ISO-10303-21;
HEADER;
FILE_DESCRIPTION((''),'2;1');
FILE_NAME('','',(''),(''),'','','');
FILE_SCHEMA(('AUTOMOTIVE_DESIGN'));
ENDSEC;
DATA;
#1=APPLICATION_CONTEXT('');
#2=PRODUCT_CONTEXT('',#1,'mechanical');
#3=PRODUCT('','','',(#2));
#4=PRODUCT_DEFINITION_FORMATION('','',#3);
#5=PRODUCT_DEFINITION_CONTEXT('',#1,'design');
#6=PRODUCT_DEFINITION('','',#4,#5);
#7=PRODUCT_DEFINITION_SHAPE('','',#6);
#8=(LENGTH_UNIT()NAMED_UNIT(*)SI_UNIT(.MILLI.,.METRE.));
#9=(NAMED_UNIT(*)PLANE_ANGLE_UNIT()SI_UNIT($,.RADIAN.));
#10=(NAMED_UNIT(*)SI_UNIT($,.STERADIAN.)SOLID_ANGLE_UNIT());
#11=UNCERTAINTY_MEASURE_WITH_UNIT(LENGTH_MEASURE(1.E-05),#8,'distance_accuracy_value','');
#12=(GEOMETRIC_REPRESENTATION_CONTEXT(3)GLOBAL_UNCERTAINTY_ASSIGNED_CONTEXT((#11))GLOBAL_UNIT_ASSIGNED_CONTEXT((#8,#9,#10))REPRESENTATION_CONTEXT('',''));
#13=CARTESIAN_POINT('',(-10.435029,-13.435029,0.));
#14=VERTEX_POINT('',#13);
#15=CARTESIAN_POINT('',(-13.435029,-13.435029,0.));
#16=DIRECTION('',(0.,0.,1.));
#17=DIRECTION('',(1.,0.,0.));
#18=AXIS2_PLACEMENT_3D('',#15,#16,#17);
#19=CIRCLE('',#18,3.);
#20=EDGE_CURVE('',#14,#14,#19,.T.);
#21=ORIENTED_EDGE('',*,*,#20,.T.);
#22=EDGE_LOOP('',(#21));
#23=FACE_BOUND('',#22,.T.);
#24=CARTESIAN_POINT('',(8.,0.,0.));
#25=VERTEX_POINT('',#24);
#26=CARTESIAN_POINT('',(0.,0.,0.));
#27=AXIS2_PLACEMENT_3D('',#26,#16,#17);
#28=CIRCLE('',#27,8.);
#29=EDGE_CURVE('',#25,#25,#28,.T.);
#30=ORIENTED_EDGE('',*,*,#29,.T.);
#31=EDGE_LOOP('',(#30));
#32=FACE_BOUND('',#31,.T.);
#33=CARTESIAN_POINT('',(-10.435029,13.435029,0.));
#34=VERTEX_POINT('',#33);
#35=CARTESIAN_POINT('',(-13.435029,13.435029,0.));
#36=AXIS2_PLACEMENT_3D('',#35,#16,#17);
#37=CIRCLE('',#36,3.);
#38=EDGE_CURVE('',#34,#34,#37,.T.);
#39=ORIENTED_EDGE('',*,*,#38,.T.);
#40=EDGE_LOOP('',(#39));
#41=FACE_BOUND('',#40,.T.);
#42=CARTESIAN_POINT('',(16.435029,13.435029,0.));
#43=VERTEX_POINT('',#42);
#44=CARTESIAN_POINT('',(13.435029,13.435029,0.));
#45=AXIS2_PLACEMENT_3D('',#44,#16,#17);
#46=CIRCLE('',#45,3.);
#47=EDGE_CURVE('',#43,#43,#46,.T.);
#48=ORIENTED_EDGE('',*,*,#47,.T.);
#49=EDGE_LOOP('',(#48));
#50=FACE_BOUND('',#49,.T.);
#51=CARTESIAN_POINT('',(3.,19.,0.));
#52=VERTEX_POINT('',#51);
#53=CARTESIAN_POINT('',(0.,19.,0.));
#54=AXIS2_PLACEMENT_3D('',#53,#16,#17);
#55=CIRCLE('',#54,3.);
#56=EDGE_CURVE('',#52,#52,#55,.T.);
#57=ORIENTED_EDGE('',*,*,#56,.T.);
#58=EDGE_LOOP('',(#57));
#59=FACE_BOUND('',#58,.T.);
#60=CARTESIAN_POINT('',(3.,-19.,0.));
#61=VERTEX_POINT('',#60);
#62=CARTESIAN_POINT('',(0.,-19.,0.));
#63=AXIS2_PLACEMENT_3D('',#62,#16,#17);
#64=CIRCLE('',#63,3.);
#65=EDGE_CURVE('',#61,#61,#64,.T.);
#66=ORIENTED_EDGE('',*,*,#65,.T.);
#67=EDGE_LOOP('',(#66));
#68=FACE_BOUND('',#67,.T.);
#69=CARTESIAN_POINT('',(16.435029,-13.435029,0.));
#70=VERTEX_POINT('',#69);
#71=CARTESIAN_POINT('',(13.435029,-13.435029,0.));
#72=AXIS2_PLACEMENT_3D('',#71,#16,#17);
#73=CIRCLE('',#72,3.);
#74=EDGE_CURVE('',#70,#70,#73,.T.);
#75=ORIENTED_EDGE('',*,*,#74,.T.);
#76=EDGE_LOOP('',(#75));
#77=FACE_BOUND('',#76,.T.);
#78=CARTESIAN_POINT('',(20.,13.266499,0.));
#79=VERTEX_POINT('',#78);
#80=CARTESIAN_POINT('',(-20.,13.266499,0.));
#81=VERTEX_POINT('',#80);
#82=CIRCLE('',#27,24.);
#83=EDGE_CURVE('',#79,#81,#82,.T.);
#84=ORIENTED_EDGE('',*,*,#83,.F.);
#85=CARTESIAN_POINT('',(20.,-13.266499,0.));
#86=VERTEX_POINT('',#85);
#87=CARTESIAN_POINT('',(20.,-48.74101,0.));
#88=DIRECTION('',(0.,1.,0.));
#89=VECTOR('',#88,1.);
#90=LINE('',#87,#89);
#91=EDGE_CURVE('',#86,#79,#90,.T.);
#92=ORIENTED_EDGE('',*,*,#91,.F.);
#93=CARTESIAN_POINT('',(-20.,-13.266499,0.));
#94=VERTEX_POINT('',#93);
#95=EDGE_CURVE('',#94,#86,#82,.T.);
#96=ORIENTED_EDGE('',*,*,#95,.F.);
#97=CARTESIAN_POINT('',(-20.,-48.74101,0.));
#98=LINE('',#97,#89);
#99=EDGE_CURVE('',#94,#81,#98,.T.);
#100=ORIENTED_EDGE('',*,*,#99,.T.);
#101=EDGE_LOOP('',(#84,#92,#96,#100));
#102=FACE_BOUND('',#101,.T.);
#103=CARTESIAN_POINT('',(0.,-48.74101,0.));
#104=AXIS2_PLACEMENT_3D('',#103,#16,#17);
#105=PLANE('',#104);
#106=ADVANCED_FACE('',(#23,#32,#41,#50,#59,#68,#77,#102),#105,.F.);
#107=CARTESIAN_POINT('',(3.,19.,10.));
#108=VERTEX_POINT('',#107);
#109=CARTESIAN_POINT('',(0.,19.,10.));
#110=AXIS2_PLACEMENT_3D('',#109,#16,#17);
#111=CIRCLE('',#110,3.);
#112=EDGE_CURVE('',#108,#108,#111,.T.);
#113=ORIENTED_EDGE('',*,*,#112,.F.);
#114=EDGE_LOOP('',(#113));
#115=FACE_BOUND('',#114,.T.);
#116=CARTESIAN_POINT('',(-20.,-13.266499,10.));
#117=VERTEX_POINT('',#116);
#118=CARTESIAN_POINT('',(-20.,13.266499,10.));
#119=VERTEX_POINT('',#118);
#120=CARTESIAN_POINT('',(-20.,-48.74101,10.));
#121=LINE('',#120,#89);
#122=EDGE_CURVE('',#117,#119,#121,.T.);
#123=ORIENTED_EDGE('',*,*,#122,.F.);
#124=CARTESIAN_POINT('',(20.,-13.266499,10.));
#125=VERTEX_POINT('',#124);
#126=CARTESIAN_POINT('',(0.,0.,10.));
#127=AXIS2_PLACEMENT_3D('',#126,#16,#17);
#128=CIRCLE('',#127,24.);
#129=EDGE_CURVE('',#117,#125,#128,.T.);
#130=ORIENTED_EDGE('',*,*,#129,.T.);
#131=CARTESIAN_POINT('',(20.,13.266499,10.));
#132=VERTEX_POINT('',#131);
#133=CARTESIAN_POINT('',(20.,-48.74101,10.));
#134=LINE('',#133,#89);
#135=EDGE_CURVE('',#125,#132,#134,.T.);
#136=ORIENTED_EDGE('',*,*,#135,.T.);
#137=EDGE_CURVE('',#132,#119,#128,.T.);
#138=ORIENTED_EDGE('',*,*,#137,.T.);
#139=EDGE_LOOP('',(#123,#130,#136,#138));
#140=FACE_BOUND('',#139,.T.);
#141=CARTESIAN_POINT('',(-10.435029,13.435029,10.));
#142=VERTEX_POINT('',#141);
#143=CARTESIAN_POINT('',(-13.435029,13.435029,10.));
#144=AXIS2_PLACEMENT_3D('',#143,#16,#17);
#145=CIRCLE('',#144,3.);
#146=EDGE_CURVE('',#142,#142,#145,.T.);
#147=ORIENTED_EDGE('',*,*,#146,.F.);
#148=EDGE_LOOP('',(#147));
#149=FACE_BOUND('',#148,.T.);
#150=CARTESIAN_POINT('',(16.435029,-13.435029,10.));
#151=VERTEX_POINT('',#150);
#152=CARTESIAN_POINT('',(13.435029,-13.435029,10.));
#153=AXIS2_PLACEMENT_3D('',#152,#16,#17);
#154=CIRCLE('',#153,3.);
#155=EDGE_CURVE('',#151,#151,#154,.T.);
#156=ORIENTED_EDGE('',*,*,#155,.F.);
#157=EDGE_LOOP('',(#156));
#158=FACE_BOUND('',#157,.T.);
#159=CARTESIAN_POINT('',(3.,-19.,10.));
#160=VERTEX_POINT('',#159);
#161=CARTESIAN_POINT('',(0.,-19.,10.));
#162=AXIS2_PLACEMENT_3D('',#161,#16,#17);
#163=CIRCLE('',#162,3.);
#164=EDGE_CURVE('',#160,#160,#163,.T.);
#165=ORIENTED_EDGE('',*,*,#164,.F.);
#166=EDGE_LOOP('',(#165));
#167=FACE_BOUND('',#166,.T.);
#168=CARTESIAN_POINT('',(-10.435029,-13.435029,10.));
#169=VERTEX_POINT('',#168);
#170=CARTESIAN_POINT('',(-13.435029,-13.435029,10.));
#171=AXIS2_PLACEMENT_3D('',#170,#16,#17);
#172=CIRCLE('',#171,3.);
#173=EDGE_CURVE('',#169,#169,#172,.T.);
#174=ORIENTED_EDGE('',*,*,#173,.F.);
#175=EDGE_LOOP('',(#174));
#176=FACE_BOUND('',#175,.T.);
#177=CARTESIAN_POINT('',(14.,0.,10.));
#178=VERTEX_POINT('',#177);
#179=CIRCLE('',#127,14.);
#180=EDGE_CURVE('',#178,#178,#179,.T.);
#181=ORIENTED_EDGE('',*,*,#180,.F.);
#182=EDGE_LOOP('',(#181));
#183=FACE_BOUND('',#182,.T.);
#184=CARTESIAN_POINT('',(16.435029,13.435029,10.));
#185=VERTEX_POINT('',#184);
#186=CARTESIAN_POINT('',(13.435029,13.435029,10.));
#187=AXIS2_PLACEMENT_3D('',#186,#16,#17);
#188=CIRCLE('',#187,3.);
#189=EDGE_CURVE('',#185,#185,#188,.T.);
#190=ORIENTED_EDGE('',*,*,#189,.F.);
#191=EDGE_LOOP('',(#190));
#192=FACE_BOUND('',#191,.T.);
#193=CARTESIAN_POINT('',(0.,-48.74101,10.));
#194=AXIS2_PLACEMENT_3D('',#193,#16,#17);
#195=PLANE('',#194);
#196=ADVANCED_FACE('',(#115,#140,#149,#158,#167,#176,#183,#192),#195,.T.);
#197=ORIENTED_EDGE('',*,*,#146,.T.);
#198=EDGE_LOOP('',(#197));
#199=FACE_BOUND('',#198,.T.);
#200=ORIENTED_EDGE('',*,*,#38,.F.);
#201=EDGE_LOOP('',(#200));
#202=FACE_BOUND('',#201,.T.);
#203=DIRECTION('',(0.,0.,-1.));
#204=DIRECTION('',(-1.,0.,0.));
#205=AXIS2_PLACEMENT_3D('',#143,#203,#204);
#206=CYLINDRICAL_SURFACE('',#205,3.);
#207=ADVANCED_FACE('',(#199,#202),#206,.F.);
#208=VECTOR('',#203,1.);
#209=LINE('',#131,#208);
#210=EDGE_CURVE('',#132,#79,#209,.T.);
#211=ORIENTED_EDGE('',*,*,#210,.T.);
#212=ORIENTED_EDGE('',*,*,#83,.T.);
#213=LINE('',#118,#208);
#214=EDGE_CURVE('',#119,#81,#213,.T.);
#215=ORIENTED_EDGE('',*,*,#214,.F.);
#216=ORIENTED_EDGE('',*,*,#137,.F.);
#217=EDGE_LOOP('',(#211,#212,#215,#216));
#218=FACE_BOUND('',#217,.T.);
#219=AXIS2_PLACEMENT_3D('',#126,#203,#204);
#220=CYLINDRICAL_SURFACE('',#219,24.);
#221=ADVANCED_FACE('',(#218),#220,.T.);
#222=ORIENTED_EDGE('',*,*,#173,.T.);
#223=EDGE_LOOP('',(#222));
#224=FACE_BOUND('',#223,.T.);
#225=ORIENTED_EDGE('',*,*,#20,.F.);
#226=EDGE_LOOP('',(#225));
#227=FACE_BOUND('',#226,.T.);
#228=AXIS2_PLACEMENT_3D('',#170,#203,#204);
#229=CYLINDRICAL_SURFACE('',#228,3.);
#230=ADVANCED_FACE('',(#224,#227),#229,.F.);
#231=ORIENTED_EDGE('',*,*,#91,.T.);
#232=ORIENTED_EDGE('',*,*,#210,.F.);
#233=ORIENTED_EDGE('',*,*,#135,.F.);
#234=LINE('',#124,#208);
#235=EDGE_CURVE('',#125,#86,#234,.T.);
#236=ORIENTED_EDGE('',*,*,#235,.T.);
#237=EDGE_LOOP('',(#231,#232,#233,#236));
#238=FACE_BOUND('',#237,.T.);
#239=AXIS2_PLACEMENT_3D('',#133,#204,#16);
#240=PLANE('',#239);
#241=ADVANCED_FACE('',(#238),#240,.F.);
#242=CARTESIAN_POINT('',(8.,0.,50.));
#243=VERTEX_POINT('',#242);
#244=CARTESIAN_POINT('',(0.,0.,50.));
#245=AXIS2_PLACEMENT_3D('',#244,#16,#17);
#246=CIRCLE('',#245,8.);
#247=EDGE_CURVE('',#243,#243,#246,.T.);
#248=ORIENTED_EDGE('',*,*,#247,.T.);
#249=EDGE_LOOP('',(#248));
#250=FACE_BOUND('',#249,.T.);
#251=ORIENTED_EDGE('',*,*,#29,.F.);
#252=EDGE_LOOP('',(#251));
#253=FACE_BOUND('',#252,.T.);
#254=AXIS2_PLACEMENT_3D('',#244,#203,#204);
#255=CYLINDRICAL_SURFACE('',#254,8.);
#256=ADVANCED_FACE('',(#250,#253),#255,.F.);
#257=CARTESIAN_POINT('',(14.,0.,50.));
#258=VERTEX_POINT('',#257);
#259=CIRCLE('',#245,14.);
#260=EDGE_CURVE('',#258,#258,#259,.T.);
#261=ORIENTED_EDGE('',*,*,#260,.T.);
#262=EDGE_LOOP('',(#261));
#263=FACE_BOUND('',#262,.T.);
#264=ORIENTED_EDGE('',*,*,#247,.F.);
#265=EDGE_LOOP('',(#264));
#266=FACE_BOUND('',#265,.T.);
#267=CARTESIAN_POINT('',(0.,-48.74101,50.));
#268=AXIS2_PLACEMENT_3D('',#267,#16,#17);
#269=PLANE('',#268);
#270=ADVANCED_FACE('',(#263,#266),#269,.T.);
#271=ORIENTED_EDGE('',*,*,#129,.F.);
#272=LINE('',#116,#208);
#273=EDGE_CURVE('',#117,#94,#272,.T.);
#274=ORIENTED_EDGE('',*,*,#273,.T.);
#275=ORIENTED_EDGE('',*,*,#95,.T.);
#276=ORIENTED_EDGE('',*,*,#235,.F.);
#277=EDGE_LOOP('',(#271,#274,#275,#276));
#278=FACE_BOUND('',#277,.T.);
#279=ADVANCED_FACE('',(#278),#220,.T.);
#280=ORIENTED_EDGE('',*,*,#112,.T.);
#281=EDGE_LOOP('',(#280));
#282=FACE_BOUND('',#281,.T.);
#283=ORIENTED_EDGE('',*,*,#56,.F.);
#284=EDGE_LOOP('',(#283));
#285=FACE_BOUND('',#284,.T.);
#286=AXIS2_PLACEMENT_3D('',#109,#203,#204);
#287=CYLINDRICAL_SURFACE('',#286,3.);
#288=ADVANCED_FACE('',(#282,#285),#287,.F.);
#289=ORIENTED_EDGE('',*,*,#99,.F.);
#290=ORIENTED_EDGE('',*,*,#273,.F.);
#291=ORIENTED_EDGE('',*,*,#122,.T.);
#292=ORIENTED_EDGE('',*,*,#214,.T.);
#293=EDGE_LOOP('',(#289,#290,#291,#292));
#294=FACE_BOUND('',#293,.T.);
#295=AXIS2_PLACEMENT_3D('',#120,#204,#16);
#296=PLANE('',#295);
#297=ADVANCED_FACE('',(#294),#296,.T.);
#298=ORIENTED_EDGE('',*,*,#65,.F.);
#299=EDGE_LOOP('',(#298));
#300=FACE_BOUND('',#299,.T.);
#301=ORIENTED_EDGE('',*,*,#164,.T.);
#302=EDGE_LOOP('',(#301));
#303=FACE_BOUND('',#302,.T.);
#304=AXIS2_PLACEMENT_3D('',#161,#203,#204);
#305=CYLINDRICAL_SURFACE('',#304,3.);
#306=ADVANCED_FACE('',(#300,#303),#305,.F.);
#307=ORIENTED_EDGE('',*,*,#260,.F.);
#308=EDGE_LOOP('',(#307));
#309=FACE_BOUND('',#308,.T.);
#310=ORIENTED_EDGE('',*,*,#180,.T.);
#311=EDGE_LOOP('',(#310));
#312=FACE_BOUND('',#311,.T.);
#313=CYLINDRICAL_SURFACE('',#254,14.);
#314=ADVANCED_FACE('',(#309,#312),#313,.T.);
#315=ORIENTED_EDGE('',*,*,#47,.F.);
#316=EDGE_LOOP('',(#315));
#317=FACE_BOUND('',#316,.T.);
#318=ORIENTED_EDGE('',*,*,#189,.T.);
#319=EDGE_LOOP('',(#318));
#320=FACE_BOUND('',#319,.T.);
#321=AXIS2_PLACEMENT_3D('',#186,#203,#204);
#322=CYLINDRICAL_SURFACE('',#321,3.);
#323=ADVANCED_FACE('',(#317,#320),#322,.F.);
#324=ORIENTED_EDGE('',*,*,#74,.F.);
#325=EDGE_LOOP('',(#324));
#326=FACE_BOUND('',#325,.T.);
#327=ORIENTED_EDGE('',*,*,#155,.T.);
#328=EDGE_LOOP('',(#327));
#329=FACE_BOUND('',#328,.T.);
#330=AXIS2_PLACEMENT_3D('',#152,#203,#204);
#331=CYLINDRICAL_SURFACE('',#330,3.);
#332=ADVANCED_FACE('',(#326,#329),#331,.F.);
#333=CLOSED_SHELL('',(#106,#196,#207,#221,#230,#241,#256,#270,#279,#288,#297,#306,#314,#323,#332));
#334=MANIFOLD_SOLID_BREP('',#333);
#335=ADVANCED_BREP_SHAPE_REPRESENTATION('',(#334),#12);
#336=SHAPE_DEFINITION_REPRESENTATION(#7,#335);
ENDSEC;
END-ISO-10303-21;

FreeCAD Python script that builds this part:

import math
import FreeCAD as App
import Part
import Sketcher

doc = App.newDocument("Part")
body = doc.addObject("PartDesign::Body", "Body")

# Sketch on XY plane
sketch1 = doc.addObject("Sketcher::SketchObject", "Sketch")
body.addObject(sketch1)
sketch1.AttachmentSupport = (doc.XY_Plane, [""])
sketch1.MapMode = "FlatFace"
sketch1.addGeometry([
    Part.LineSegment(App.Vector(-20, 13.3, 0), App.Vector(-20, -13.3, 0)),  # 0
    Part.ArcOfCircle(Part.Circle(App.Vector(0, 0, 0), App.Vector(0, 0, 1), 24), math.radians(-146), math.radians(-34)),  # 1
    Part.LineSegment(App.Vector(20, -13.3, 0), App.Vector(20, 13.3, 0)),  # 2
    Part.ArcOfCircle(Part.Circle(App.Vector(0, 0, 0), App.Vector(0, 0, 1), 24), math.radians(34), math.radians(146)),  # 3
    Part.Circle(App.Vector(-13.4, -13.4, 0), App.Vector(0, 0, 1), 3),  # 4
    Part.Circle(App.Vector(0, -19, 0), App.Vector(0, 0, 1), 3),  # 5
    Part.Circle(App.Vector(13.4, -13.4, 0), App.Vector(0, 0, 1), 3),  # 6
    Part.Circle(App.Vector(-13.4, 13.4, 0), App.Vector(0, 0, 1), 3),  # 7
    Part.ArcOfCircle(Part.Circle(App.Vector(0, 0, 0), App.Vector(0, 0, 1), 14), math.radians(135), math.radians(225)),  # 8
    Part.ArcOfCircle(Part.Circle(App.Vector(0, 0, 0), App.Vector(0, 0, 1), 14), math.radians(90), math.radians(135)),  # 9
    Part.ArcOfCircle(Part.Circle(App.Vector(0, 0, 0), App.Vector(0, 0, 1), 14), math.radians(45), math.radians(90)),  # 10
    Part.ArcOfCircle(Part.Circle(App.Vector(0, 0, 0), App.Vector(0, 0, 1), 14), math.radians(-45), math.radians(45)),  # 11
    Part.ArcOfCircle(Part.Circle(App.Vector(0, 0, 0), App.Vector(0, 0, 1), 14), math.radians(-90), math.radians(-45)),  # 12
    Part.ArcOfCircle(Part.Circle(App.Vector(0, 0, 0), App.Vector(0, 0, 1), 14), math.radians(-135), math.radians(-90)),  # 13
    Part.Circle(App.Vector(0, 19, 0), App.Vector(0, 0, 1), 3),  # 14
    Part.Circle(App.Vector(13.4, 13.4, 0), App.Vector(0, 0, 1), 3),  # 15
], False)
sketch1.addConstraint([
    Sketcher.Constraint("Coincident", 0, 2, 1, 1),
    Sketcher.Constraint("Coincident", 1, 2, 2, 1),
    Sketcher.Constraint("Coincident", 2, 2, 3, 1),
    Sketcher.Constraint("Coincident", 3, 2, 0, 1),
    Sketcher.Constraint("Tangent", 8, 1, 9, 2),
    Sketcher.Constraint("Tangent", 9, 1, 10, 2),
    Sketcher.Constraint("Tangent", 10, 1, 11, 2),
    Sketcher.Constraint("Tangent", 11, 1, 12, 2),
    Sketcher.Constraint("Tangent", 12, 1, 13, 2),
    Sketcher.Constraint("Tangent", 13, 1, 8, 2),
    Sketcher.Constraint("Vertical", 0),
    Sketcher.Constraint("Vertical", 2),
    Sketcher.Constraint("Coincident", 1, 3, -1, 1),
    Sketcher.Constraint("Coincident", 3, 3, -1, 1),
    Sketcher.Constraint("Coincident", 8, 3, -1, 1),
    Sketcher.Constraint("Coincident", 10, 3, -1, 1),
    Sketcher.Constraint("Equal", 1, 3),
    Sketcher.Constraint("Equal", 4, 5),
    Sketcher.Constraint("Equal", 5, 6),
    Sketcher.Constraint("Equal", 6, 7),
    Sketcher.Constraint("Equal", 10, 11),
    Sketcher.Constraint("Equal", 7, 14),
    Sketcher.Constraint("Equal", 14, 15),
    Sketcher.Constraint("Symmetric", 6, 3, 7, 3, -1, 1),
    Sketcher.Constraint("Symmetric", 5, 3, 14, 3, -1, 1),
    Sketcher.Constraint("Symmetric", 4, 3, 15, 3, -1, 1),
    Sketcher.Constraint("Symmetric", 4, 3, 6, 3, -2),
    Sketcher.Constraint("PointOnObject", 5, 3, -2),
    Sketcher.Constraint("PointOnObject", 9, 1, -2),
    Sketcher.Constraint("PointOnObject", 12, 1, -2),
    Sketcher.Constraint("Horizontal", 0, 2, 1, 2),
    Sketcher.Constraint("Horizontal", 8, 1, 10, 1),
    Sketcher.Constraint("Horizontal", 11, 1, 13, 1),
    Sketcher.Constraint("Vertical", 10, 1, 11, 1),
    Sketcher.Constraint("Diameter", 4, 6.0),
    Sketcher.Constraint("Radius", 1, 24.0),
    Sketcher.Constraint("Radius", 8, 14.0),
    Sketcher.Constraint("DistanceY", 5, 3, -1, 1, 19.0),
    Sketcher.Constraint("DistanceX", 0, 2, -1, 1, 20.0),
    Sketcher.Constraint("DistanceX", 4, 3, -1, 1, 13.435029),
    Sketcher.Constraint("DistanceY", 4, 3, -1, 1, 13.435029),
    Sketcher.Constraint("DistanceX", 8, 1, -1, 1, 9.899495),
])
pad1 = doc.addObject("PartDesign::Pad", "Pad")
body.addObject(pad1)
pad1.Profile = sketch1
pad1.Length = 10

# Sketch on XY plane
sketch2 = doc.addObject("Sketcher::SketchObject", "Sketch001")
body.addObject(sketch2)
sketch2.AttachmentSupport = (doc.XY_Plane, [""])
sketch2.MapMode = "FlatFace"
sketch2.addGeometry([
    Part.ArcOfCircle(Part.Circle(App.Vector(0, 0, 0), App.Vector(0, 0, 1), 14), math.radians(-180), math.radians(-135)),  # 0
    Part.ArcOfCircle(Part.Circle(App.Vector(0, 0, 0), App.Vector(0, 0, 1), 14), math.radians(-135), math.radians(-90)),  # 1
    Part.ArcOfCircle(Part.Circle(App.Vector(0, 0, 0), App.Vector(0, 0, 1), 14), math.radians(-90), math.radians(-45)),  # 2
    Part.ArcOfCircle(Part.Circle(App.Vector(0, 0, 0), App.Vector(0, 0, 1), 14), math.radians(-45), math.radians(0)),  # 3
    Part.ArcOfCircle(Part.Circle(App.Vector(0, 0, 0), App.Vector(0, 0, 1), 14), math.radians(0), math.radians(45)),  # 4
    Part.ArcOfCircle(Part.Circle(App.Vector(0, 0, 0), App.Vector(0, 0, 1), 14), math.radians(45), math.radians(90)),  # 5
    Part.ArcOfCircle(Part.Circle(App.Vector(0, 0, 0), App.Vector(0, 0, 1), 14), math.radians(90), math.radians(135)),  # 6
    Part.ArcOfCircle(Part.Circle(App.Vector(0, 0, 0), App.Vector(0, 0, 1), 14), math.radians(135), math.radians(180)),  # 7
    Part.ArcOfCircle(Part.Circle(App.Vector(0, 0, 0), App.Vector(0, 0, 1), 8), math.radians(45), math.radians(90)),  # 8
    Part.ArcOfCircle(Part.Circle(App.Vector(0, 0, 0), App.Vector(0, 0, 1), 8), math.radians(0), math.radians(45)),  # 9
    Part.ArcOfCircle(Part.Circle(App.Vector(0, 0, 0), App.Vector(0, 0, 1), 8), math.radians(-45), math.radians(0)),  # 10
    Part.ArcOfCircle(Part.Circle(App.Vector(0, 0, 0), App.Vector(0, 0, 1), 8), math.radians(-90), math.radians(-45)),  # 11
    Part.ArcOfCircle(Part.Circle(App.Vector(0, 0, 0), App.Vector(0, 0, 1), 8), math.radians(-135), math.radians(-90)),  # 12
    Part.ArcOfCircle(Part.Circle(App.Vector(0, 0, 0), App.Vector(0, 0, 1), 8), math.radians(180), math.radians(225)),  # 13
    Part.ArcOfCircle(Part.Circle(App.Vector(0, 0, 0), App.Vector(0, 0, 1), 8), math.radians(135), math.radians(180)),  # 14
    Part.ArcOfCircle(Part.Circle(App.Vector(0, 0, 0), App.Vector(0, 0, 1), 8), math.radians(90), math.radians(135)),  # 15
], False)
sketch2.addConstraint([
    Sketcher.Constraint("Tangent", 0, 2, 1, 1),
    Sketcher.Constraint("Tangent", 1, 2, 2, 1),
    Sketcher.Constraint("Tangent", 2, 2, 3, 1),
    Sketcher.Constraint("Tangent", 3, 2, 4, 1),
    Sketcher.Constraint("Tangent", 4, 2, 5, 1),
    Sketcher.Constraint("Tangent", 5, 2, 6, 1),
    Sketcher.Constraint("Tangent", 6, 2, 7, 1),
    Sketcher.Constraint("Tangent", 7, 2, 0, 1),
    Sketcher.Constraint("Tangent", 8, 1, 9, 2),
    Sketcher.Constraint("Tangent", 9, 1, 10, 2),
    Sketcher.Constraint("Tangent", 10, 1, 11, 2),
    Sketcher.Constraint("Tangent", 11, 1, 12, 2),
    Sketcher.Constraint("Tangent", 12, 1, 13, 2),
    Sketcher.Constraint("Tangent", 13, 1, 14, 2),
    Sketcher.Constraint("Tangent", 14, 1, 15, 2),
    Sketcher.Constraint("Tangent", 15, 1, 8, 2),
    Sketcher.Constraint("Coincident", 0, 3, -1, 1),
    Sketcher.Constraint("Coincident", 2, 3, -1, 1),
    Sketcher.Constraint("Coincident", 4, 3, -1, 1),
    Sketcher.Constraint("Coincident", 8, 3, -1, 1),
    Sketcher.Constraint("Coincident", 10, 3, -1, 1),
    Sketcher.Constraint("Coincident", 12, 3, -1, 1),
    Sketcher.Constraint("Equal", 4, 5),
    Sketcher.Constraint("Equal", 12, 13),
    Sketcher.Constraint("PointOnObject", 1, 2, -2),
    Sketcher.Constraint("PointOnObject", 3, 2, -1),
    Sketcher.Constraint("PointOnObject", 5, 2, -2),
    Sketcher.Constraint("PointOnObject", 7, 2, -1),
    Sketcher.Constraint("PointOnObject", 9, 1, -1),
    Sketcher.Constraint("PointOnObject", 11, 1, -2),
    Sketcher.Constraint("PointOnObject", 13, 1, -1),
    Sketcher.Constraint("PointOnObject", 15, 1, -2),
    Sketcher.Constraint("Horizontal", 0, 2, 2, 2),
    Sketcher.Constraint("Horizontal", 4, 2, 6, 2),
    Sketcher.Constraint("Horizontal", 10, 1, 12, 1),
    Sketcher.Constraint("Horizontal", 8, 1, 14, 1),
    Sketcher.Constraint("Vertical", 2, 2, 4, 2),
    Sketcher.Constraint("Vertical", 8, 1, 10, 1),
    Sketcher.Constraint("Radius", 0, 14.0),
    Sketcher.Constraint("Radius", 8, 8.0),
    Sketcher.Constraint("DistanceX", 8, 1, 4, 2, 4.242641),
    Sketcher.Constraint("DistanceX", 0, 2, -1, 1, 9.899495),
])
pad2 = doc.addObject("PartDesign::Pad", "Pad001")
body.addObject(pad2)
pad2.Profile = sketch2
pad2.Length = 50

doc.recompute()
